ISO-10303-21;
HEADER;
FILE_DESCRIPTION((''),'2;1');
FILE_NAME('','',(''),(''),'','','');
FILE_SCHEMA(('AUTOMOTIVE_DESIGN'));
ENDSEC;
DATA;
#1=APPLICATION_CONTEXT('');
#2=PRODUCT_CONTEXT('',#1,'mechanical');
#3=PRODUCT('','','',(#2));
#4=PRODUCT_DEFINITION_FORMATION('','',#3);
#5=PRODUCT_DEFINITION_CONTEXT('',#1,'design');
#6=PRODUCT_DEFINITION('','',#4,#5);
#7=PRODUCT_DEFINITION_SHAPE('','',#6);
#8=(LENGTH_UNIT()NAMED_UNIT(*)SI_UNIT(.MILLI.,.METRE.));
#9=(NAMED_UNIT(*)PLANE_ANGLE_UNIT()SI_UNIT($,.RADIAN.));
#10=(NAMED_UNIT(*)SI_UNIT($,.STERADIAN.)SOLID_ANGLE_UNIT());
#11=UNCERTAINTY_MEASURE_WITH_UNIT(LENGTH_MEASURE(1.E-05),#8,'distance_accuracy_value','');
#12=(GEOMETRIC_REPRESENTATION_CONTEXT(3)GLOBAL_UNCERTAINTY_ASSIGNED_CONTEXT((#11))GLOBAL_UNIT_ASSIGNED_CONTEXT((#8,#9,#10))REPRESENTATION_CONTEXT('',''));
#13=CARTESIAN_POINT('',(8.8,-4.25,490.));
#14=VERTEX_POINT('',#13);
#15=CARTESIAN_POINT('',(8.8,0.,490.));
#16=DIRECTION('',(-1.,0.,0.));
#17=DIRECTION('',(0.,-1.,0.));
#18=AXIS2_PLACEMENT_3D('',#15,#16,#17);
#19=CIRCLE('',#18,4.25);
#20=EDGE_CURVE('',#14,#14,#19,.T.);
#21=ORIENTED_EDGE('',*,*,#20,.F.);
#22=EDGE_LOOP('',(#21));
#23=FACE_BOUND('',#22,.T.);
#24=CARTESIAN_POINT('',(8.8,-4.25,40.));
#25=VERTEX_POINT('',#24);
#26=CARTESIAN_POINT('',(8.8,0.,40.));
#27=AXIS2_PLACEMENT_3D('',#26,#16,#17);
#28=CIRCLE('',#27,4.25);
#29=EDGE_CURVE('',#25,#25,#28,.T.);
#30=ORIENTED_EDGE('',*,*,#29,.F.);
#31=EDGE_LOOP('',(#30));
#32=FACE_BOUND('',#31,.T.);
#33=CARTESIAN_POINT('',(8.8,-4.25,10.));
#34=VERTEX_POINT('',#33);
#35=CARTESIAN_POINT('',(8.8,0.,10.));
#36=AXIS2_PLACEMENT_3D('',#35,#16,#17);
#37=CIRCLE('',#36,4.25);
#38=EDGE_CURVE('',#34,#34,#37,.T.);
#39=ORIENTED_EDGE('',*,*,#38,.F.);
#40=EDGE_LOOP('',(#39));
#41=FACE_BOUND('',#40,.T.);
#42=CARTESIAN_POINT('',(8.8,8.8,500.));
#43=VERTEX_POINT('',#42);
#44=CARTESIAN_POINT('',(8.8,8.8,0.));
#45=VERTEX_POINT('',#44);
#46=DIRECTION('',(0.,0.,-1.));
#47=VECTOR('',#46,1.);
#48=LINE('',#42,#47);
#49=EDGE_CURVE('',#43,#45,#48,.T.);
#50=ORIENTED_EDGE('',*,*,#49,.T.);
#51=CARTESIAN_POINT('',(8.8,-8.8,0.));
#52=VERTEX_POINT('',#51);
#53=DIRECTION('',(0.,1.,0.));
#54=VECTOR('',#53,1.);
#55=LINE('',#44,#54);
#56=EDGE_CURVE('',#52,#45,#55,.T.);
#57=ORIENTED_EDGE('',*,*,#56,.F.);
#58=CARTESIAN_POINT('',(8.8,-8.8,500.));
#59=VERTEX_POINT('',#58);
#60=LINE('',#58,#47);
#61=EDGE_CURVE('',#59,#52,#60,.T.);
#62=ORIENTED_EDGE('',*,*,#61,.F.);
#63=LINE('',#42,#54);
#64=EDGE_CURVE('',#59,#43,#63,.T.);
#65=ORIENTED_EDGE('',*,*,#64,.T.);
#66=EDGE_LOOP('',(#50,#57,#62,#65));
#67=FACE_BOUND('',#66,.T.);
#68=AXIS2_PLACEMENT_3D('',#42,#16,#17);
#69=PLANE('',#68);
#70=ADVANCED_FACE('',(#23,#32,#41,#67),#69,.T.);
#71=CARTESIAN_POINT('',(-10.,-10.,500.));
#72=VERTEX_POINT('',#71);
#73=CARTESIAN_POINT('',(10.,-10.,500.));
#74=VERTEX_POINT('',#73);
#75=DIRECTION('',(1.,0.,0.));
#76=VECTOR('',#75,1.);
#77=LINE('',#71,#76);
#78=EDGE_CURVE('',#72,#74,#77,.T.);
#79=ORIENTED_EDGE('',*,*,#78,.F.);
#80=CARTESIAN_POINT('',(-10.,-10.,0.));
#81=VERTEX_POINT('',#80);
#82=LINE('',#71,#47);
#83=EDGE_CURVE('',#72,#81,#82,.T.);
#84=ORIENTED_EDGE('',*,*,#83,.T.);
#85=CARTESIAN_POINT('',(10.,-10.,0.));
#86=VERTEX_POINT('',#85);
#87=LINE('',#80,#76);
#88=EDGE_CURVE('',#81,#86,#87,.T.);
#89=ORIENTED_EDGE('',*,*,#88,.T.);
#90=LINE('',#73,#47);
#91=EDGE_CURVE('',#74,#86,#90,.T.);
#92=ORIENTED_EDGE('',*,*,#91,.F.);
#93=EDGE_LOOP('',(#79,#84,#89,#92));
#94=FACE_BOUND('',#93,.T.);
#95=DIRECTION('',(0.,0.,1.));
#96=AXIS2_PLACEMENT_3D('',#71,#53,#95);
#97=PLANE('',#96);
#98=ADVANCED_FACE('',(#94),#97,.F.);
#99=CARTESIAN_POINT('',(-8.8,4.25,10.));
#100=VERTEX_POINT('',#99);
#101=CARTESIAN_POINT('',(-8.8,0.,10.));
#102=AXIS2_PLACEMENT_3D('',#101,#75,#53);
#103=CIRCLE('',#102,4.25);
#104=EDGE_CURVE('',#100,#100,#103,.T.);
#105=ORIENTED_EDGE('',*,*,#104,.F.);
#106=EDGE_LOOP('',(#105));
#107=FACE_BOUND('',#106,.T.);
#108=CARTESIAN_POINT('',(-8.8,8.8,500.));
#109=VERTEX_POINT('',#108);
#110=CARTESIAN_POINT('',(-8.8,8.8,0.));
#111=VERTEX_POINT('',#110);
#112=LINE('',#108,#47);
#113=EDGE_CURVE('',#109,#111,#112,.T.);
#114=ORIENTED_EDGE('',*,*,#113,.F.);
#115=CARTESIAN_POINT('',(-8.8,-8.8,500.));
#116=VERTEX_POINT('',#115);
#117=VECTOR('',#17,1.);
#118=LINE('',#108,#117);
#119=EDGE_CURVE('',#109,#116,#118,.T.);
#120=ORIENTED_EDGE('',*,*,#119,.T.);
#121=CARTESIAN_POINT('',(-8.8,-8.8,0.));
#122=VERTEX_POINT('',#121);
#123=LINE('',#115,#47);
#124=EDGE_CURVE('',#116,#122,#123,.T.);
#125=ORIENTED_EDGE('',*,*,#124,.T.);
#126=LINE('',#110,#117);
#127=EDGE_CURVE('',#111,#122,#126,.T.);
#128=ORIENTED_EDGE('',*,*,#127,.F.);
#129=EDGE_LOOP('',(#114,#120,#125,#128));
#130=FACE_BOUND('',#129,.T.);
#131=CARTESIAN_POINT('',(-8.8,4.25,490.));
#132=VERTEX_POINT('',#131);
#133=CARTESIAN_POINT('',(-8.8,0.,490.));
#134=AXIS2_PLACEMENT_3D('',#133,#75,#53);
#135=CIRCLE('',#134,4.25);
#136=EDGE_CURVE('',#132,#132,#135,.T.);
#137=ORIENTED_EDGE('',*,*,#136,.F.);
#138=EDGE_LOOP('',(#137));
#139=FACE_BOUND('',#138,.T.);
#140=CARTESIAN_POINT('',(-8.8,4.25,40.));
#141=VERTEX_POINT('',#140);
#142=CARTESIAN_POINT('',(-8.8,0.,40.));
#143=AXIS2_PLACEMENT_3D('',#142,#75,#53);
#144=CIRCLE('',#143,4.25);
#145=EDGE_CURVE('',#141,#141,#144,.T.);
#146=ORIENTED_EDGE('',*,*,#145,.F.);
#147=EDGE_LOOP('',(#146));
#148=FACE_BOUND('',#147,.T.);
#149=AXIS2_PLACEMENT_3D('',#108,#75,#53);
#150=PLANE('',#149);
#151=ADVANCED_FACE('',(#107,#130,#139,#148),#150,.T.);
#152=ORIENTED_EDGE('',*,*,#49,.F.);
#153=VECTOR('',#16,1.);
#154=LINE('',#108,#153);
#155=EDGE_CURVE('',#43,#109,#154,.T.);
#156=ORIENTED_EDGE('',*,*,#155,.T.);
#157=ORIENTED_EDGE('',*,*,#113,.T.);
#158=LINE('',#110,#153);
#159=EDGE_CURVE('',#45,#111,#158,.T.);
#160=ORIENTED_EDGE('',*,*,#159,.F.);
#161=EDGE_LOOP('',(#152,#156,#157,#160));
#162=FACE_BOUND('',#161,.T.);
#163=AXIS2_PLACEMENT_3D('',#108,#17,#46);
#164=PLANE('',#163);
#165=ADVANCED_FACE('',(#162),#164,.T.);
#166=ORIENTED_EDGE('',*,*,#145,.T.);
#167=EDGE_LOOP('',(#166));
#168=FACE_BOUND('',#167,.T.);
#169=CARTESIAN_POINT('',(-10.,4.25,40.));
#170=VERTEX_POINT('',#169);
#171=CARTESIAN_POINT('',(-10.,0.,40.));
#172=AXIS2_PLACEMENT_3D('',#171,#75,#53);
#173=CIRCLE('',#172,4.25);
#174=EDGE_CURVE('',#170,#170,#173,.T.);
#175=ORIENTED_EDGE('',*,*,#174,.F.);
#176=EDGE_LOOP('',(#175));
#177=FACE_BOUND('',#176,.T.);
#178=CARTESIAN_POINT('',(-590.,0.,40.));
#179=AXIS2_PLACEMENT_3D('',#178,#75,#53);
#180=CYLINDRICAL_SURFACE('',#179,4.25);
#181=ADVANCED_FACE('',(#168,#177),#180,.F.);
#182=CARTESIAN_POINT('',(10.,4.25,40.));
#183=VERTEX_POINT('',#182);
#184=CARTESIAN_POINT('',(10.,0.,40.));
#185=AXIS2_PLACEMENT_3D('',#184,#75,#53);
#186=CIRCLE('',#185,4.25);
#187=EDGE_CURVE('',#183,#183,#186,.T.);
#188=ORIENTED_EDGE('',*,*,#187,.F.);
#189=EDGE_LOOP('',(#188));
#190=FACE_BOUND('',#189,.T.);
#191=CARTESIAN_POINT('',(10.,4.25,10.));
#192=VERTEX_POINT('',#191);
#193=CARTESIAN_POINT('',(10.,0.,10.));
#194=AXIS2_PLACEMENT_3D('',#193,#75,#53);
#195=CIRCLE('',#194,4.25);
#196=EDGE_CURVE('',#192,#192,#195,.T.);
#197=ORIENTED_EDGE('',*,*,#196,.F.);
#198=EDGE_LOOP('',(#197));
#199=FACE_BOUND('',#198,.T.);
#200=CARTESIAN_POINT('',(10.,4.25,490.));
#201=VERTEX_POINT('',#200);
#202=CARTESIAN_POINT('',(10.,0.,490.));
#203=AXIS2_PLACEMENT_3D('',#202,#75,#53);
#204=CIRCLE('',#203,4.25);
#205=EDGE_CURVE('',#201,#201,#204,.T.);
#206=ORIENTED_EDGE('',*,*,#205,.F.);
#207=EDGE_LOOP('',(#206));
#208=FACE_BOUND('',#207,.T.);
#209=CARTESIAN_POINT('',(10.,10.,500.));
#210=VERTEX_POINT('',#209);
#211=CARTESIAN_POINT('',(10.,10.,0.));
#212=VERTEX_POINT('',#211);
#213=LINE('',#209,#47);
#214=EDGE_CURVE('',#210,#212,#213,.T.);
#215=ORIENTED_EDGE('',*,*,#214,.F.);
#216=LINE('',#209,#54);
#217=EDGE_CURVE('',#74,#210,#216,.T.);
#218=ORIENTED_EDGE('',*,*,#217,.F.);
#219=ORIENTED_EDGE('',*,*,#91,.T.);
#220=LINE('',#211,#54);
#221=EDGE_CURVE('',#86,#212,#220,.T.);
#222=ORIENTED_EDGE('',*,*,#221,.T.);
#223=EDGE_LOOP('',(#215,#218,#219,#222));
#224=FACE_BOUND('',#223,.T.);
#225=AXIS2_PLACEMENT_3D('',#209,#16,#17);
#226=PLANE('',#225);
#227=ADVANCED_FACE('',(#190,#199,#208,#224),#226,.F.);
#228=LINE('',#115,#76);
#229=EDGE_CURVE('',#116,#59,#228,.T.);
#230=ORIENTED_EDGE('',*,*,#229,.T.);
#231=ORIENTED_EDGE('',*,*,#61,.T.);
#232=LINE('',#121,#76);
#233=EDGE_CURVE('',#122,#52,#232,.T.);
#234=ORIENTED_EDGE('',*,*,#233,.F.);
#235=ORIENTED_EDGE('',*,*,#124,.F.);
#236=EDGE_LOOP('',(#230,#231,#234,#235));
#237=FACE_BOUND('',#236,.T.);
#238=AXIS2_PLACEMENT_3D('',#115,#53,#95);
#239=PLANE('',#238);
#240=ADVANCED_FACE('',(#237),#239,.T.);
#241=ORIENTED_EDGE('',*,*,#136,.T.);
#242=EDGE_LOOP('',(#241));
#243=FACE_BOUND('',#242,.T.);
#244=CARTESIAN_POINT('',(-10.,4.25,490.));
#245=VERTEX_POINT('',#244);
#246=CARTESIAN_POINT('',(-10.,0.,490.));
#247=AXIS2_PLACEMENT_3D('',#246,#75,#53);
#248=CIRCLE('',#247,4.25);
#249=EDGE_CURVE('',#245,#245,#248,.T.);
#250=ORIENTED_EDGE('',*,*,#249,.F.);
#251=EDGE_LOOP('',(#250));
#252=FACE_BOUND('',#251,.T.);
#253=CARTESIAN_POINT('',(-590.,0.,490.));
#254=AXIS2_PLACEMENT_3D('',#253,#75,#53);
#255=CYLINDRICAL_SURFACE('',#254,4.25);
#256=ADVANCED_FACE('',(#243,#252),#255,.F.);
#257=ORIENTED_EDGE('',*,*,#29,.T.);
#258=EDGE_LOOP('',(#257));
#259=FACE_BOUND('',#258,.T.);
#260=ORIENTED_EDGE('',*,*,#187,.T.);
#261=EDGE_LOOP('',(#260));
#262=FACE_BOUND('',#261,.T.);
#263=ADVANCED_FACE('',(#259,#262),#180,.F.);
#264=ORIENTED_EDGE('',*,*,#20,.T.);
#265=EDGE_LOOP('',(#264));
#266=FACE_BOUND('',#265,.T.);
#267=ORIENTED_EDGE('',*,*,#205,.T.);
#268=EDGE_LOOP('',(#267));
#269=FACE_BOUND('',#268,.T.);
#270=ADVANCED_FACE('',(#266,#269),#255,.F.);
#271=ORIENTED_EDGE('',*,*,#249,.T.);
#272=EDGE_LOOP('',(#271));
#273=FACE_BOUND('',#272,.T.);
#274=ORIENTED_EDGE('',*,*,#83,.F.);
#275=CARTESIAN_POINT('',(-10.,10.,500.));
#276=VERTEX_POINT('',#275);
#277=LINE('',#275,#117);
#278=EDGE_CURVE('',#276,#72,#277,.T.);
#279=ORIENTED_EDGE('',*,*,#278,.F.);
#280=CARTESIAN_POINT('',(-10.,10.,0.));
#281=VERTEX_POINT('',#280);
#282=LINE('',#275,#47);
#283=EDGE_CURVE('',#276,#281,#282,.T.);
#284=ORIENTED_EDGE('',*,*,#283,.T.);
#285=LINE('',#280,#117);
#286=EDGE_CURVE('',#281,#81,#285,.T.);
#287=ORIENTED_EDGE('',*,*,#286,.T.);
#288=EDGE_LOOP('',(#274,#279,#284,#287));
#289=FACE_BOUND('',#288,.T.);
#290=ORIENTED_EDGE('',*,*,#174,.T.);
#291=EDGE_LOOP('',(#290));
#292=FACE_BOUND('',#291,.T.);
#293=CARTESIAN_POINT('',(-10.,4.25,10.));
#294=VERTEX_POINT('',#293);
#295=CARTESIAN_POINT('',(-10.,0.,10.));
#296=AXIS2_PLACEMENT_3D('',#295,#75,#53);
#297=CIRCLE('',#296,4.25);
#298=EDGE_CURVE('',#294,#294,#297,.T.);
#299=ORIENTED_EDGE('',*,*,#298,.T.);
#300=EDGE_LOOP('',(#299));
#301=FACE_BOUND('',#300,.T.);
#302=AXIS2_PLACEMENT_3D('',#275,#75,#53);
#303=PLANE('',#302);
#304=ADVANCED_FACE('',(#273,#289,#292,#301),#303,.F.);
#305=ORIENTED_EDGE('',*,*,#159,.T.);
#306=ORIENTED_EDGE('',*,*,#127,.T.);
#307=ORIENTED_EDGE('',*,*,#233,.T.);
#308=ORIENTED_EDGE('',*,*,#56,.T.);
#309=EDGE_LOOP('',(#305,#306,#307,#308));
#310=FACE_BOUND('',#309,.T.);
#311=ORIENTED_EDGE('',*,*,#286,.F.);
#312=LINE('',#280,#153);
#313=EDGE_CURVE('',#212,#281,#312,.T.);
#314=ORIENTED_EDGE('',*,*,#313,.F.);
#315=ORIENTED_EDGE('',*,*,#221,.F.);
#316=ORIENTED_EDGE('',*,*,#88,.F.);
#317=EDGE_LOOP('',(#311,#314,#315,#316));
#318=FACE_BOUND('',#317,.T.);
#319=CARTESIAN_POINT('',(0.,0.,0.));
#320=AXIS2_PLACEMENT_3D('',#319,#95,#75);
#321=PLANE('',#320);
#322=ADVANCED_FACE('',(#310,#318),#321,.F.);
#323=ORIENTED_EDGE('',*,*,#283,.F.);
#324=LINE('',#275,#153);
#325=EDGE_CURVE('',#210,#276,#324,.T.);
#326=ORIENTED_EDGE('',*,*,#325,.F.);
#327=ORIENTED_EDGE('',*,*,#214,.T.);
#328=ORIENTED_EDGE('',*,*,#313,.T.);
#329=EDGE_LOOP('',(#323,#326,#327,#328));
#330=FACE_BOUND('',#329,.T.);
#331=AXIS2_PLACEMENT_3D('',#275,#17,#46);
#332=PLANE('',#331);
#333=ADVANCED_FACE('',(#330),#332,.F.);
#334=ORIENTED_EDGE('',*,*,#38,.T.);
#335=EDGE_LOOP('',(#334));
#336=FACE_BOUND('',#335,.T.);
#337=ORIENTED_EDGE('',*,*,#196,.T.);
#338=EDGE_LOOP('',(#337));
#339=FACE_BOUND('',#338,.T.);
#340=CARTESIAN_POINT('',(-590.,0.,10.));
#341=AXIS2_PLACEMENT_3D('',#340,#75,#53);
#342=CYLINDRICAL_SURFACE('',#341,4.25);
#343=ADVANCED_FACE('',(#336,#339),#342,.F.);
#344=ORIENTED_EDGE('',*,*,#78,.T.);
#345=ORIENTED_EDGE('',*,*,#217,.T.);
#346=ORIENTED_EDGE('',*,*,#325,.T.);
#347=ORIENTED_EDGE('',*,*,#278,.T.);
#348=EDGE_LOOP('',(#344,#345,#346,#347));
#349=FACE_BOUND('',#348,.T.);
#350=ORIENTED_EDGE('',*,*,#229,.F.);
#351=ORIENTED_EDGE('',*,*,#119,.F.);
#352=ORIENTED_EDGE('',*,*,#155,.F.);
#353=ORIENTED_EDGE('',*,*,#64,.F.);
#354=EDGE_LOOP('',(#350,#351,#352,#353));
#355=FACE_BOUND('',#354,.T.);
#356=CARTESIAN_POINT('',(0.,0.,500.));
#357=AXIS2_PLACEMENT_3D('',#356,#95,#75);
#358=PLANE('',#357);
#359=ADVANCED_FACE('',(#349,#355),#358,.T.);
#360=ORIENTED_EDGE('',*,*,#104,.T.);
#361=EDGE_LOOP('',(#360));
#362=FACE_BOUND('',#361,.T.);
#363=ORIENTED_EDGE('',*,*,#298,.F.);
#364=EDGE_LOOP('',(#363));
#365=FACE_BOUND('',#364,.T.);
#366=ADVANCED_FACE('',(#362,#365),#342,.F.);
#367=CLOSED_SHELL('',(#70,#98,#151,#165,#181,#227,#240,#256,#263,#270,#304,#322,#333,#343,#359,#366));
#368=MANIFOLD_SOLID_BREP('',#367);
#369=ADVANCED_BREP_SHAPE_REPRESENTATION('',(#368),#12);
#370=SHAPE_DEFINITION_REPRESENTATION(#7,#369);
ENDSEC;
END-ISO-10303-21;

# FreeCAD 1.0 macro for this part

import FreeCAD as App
import Part
import Sketcher

V = App.Vector

doc = App.newDocument("Part")
params = doc.addObject("Spreadsheet::Sheet", "Params")
for row, (alias, value) in enumerate([
    ("sketch1_width", "20 mm"),
    ("sketch1_width2", "17.6 mm"),
    ("pad1_length", "500 mm"),
    ("sketch2_diameter", "8.5 mm"),
    ("pocket1_length", "600 mm"),
], start=1):
    params.set(f"A{row}", alias)
    params.set(f"B{row}", "=" + value)
    params.setAlias(f"B{row}", alias)

body = doc.addObject("PartDesign::Body", "Body")

# Sketch on XY plane
sketch1 = body.newObject("Sketcher::SketchObject", "Sketch")
sketch1.AttachmentSupport = (doc.getObject("XY_Plane"), [""])
sketch1.MapMode = "FlatFace"
sketch1.addGeometry([
    Part.LineSegment(V(-10, 10, 0), V(-10, -10, 0)),  # 0
    Part.LineSegment(V(-10, -10, 0), V(10, -10, 0)),  # 1
    Part.LineSegment(V(10, -10, 0), V(10, 10, 0)),  # 2
    Part.LineSegment(V(10, 10, 0), V(-10, 10, 0)),  # 3
    Part.LineSegment(V(8.8, -8.8, 0), V(-8.8, -8.8, 0)),  # 4
    Part.LineSegment(V(-8.8, -8.8, 0), V(-8.8, 8.8, 0)),  # 5
    Part.LineSegment(V(-8.8, 8.8, 0), V(8.8, 8.8, 0)),  # 6
    Part.LineSegment(V(8.8, 8.8, 0), V(8.8, -8.8, 0)),  # 7
], False)
sketch1.addConstraint([
    Sketcher.Constraint("Coincident", 0, 2, 1, 1),
    Sketcher.Constraint("Coincident", 1, 2, 2, 1),
    Sketcher.Constraint("Coincident", 2, 2, 3, 1),
    Sketcher.Constraint("Coincident", 3, 2, 0, 1),
    Sketcher.Constraint("Coincident", 4, 2, 5, 1),
    Sketcher.Constraint("Coincident", 5, 2, 6, 1),
    Sketcher.Constraint("Coincident", 6, 2, 7, 1),
    Sketcher.Constraint("Coincident", 7, 2, 4, 1),
    Sketcher.Constraint("Vertical", 0),
    Sketcher.Constraint("Horizontal", 1),
    Sketcher.Constraint("Vertical", 2),
    Sketcher.Constraint("Horizontal", 3),
    Sketcher.Constraint("Horizontal", 4),
    Sketcher.Constraint("Vertical", 5),
    Sketcher.Constraint("Horizontal", 6),
    Sketcher.Constraint("Vertical", 7),
    Sketcher.Constraint("Symmetric", 0, 2, 2, 2, -1, 1),
    Sketcher.Constraint("Symmetric", 4, 2, 6, 2, -1, 1),
    Sketcher.Constraint("Equal", 3, 0),
    Sketcher.Constraint("Equal", 6, 5),
    Sketcher.Constraint("DistanceX", 1, 1, 1, 2, 20.0),
    Sketcher.Constraint("DistanceX", 4, 2, 4, 1, 17.6),
])
sketch1.setExpression("Constraints[20]", "Params.sketch1_width")
sketch1.setExpression("Constraints[21]", "Params.sketch1_width2")
pad1 = body.newObject("PartDesign::Pad", "Pad")
pad1.Profile = sketch1
pad1.setExpression("Length", "Params.pad1_length")

# Sketch on YZ plane
sketch2 = body.newObject("Sketcher::SketchObject", "Sketch001")
sketch2.AttachmentSupport = (doc.getObject("YZ_Plane"), [""])
sketch2.MapMode = "FlatFace"
sketch2.AttachmentOffset = App.Placement(V(0, 0, 10), App.Rotation())
sketch2.addGeometry([
    Part.Circle(V(0, 490, 0), V(0, 0, 1), 4.25),
    Part.Circle(V(0, 10, 0), V(0, 0, 1), 4.25),
    Part.Circle(V(0, 40, 0), V(0, 0, 1), 4.25),
], False)
sketch2.addConstraint([
    Sketcher.Constraint("Equal", 0, 1),
    Sketcher.Constraint("Equal", 1, 2),
    Sketcher.Constraint("PointOnObject", 0, 3, -2),
    Sketcher.Constraint("PointOnObject", 1, 3, -2),
    Sketcher.Constraint("PointOnObject", 2, 3, -2),
    Sketcher.Constraint("Diameter", 0, 8.5),
    Sketcher.Constraint("DistanceY", -1, 1, 0, 3, 490.0),
    Sketcher.Constraint("DistanceY", -1, 1, 1, 3, 10.0),
    Sketcher.Constraint("DistanceY", -1, 1, 2, 3, 40.0),
])
sketch2.setExpression("Constraints[5]", "Params.sketch2_diameter")
pocket1 = body.newObject("PartDesign::Pocket", "Pocket")
pocket1.Profile = sketch2
pocket1.setExpression("Length", "Params.pocket1_length")

doc.recompute()
